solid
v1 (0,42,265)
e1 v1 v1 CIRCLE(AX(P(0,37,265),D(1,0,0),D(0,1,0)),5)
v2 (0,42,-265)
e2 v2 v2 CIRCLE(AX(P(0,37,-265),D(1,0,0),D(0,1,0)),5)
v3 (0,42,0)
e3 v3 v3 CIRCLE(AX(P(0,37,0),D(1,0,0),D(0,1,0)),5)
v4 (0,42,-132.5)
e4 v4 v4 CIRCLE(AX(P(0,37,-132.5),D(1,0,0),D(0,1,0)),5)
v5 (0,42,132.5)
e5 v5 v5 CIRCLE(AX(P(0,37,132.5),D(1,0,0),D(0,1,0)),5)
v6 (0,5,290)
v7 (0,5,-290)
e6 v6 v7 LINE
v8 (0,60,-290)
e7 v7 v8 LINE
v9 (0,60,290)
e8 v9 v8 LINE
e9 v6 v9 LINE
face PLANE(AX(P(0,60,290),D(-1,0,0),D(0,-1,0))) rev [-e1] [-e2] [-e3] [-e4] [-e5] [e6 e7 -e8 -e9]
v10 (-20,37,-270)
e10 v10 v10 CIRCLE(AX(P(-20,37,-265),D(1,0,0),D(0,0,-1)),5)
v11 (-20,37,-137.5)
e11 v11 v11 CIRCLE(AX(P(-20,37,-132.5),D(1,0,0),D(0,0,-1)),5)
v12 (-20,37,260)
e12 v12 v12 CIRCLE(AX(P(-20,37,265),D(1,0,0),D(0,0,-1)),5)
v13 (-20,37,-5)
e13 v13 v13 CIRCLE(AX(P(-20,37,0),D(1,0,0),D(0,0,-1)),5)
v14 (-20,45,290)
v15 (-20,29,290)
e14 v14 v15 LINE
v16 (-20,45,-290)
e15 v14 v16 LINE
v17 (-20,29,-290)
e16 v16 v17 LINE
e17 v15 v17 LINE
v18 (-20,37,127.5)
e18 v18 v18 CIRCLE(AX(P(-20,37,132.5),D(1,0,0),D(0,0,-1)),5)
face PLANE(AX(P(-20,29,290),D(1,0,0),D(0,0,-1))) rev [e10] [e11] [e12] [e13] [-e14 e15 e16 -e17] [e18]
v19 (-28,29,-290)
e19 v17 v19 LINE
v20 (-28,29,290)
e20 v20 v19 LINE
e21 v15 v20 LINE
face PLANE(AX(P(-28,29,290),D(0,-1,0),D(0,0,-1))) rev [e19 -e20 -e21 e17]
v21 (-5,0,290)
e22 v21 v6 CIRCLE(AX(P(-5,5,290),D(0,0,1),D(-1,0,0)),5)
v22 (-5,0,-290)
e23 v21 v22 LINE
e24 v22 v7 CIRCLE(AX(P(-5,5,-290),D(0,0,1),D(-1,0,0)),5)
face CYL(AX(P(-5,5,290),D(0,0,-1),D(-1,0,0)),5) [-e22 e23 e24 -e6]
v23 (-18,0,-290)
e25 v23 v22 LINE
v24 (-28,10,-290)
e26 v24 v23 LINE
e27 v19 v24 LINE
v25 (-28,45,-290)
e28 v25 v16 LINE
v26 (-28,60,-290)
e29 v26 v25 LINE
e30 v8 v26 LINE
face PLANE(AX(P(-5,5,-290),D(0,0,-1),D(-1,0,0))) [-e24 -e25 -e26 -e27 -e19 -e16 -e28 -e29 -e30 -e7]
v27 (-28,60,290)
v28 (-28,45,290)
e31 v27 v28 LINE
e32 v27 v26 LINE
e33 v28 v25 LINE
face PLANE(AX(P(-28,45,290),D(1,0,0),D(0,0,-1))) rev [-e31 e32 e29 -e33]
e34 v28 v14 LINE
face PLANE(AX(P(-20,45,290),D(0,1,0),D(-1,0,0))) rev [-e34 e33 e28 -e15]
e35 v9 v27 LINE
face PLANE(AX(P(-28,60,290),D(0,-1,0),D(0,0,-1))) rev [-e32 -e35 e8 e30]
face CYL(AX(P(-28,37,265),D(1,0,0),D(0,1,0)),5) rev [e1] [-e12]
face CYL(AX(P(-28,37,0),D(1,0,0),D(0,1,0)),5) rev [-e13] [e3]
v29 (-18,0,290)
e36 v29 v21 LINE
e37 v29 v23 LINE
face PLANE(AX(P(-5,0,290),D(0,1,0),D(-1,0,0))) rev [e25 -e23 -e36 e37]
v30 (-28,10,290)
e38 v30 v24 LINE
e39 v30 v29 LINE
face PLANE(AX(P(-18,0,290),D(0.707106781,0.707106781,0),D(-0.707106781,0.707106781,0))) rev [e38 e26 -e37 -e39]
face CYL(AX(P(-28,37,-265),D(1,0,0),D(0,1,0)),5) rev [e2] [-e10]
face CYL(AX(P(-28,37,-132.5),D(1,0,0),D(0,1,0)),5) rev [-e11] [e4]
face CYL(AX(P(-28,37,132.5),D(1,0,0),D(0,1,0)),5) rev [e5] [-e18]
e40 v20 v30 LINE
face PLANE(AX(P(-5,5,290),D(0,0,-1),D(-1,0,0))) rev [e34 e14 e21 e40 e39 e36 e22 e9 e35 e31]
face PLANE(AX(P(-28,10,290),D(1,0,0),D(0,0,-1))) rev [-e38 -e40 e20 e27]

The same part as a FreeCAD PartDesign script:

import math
import FreeCAD as App
import Part
import Sketcher

V = App.Vector
Q = App.Units.Quantity

doc = App.newDocument("Part")
body = doc.addObject("PartDesign::Body", "Body")

# Sketch on XY plane
sketch1 = body.newObject("Sketcher::SketchObject", "Sketch")
sketch1.AttachmentSupport = (doc.getObject("XY_Plane"), [""])
sketch1.MapMode = "FlatFace"
sketch1.addGeometry(Part.LineSegment(V(0, 5, 0), V(0, 60, 0)), False)
sketch1.addGeometry(Part.LineSegment(V(0, 60, 0), V(-28, 60, 0)), False)
sketch1.addGeometry(Part.LineSegment(V(-28, 60, 0), V(-28, 45, 0)), False)
sketch1.addGeometry(Part.LineSegment(V(-28, 45, 0), V(-20, 45, 0)), False)
sketch1.addGeometry(Part.LineSegment(V(-20, 45, 0), V(-20, 29, 0)), False)
sketch1.addGeometry(Part.LineSegment(V(-20, 29, 0), V(-28, 29, 0)), False)
sketch1.addGeometry(Part.LineSegment(V(-28, 29, 0), V(-28, 10, 0)), False)
sketch1.addGeometry(Part.LineSegment(V(-28, 10, 0), V(-18, 0, 0)), False)
sketch1.addGeometry(Part.LineSegment(V(-18, 0, 0), V(-5, 0, 0)), False)
sketch1.addGeometry(Part.ArcOfCircle(Part.Circle(V(-5, 5, 0), V(0, 0, 1), 5), math.radians(-90), math.radians(0)), False)
sketch1.addConstraint(Sketcher.Constraint("Coincident", 0, 2, 1, 1))
sketch1.addConstraint(Sketcher.Constraint("Coincident", 1, 2, 2, 1))
sketch1.addConstraint(Sketcher.Constraint("Coincident", 2, 2, 3, 1))
sketch1.addConstraint(Sketcher.Constraint("Coincident", 3, 2, 4, 1))
sketch1.addConstraint(Sketcher.Constraint("Coincident", 4, 2, 5, 1))
sketch1.addConstraint(Sketcher.Constraint("Coincident", 5, 2, 6, 1))
sketch1.addConstraint(Sketcher.Constraint("Coincident", 6, 2, 7, 1))
sketch1.addConstraint(Sketcher.Constraint("Coincident", 7, 2, 8, 1))
sketch1.addConstraint(Sketcher.Constraint("Tangent", 8, 2, 9, 1))
sketch1.addConstraint(Sketcher.Constraint("Tangent", 9, 2, 0, 1))
sketch1.addConstraint(Sketcher.Constraint("Vertical", 0))
sketch1.addConstraint(Sketcher.Constraint("Horizontal", 1))
sketch1.addConstraint(Sketcher.Constraint("Vertical", 2))
sketch1.addConstraint(Sketcher.Constraint("Horizontal", 3))
sketch1.addConstraint(Sketcher.Constraint("Vertical", 4))
sketch1.addConstraint(Sketcher.Constraint("Horizontal", 5))
sketch1.addConstraint(Sketcher.Constraint("Vertical", 6))
sketch1.addConstraint(Sketcher.Constraint("Horizontal", 8))
sketch1.addConstraint(Sketcher.Constraint("PointOnObject", 0, 2, -2))
sketch1.addConstraint(Sketcher.Constraint("PointOnObject", 7, 2, -1))
sketch1.addConstraint(Sketcher.Constraint("Vertical", 2, 2, 5, 2))
sketch1.addConstraint(Sketcher.Constraint("Radius", 9, Q("5 mm")))
sketch1.addConstraint(Sketcher.Constraint("DistanceX", 1, 2, 1, 1, Q("28 mm")))
sketch1.addConstraint(Sketcher.Constraint("DistanceX", 3, 1, 3, 2, Q("8 mm")))
sketch1.addConstraint(Sketcher.Constraint("DistanceX", 8, 1, 8, 2, Q("13 mm")))
sketch1.addConstraint(Sketcher.Constraint("DistanceY", 0, 1, 0, 2, Q("55 mm")))
sketch1.addConstraint(Sketcher.Constraint("DistanceY", 2, 2, 2, 1, Q("15 mm")))
sketch1.addConstraint(Sketcher.Constraint("DistanceY", 4, 2, 4, 1, Q("16 mm")))
sketch1.addConstraint(Sketcher.Constraint("DistanceY", 6, 2, 6, 1, Q("19 mm")))
pad1 = body.newObject("PartDesign::Pad", "Pad")
pad1.Profile = sketch1
pad1.Length = 580
pad1.Midplane = True

# Sketch on YZ plane
sketch2 = body.newObject("Sketcher::SketchObject", "Sketch001")
sketch2.AttachmentSupport = (doc.getObject("YZ_Plane"), [""])
sketch2.MapMode = "FlatFace"
sketch2.addGeometry(Part.Circle(V(37, 265, 0), V(0, 0, 1), 5), False)
sketch2.addGeometry(Part.Circle(V(37, 132.5, 0), V(0, 0, 1), 5), False)
sketch2.addGeometry(Part.Circle(V(37, 0, 0), V(0, 0, 1), 5), False)
sketch2.addGeometry(Part.Circle(V(37, -132.5, 0), V(0, 0, 1), 5), False)
sketch2.addGeometry(Part.Circle(V(37, -265, 0), V(0, 0, 1), 5), False)
sketch2.addConstraint(Sketcher.Constraint("Equal", 0, 1))
sketch2.addConstraint(Sketcher.Constraint("Equal", 1, 2))
sketch2.addConstraint(Sketcher.Constraint("Equal", 2, 3))
sketch2.addConstraint(Sketcher.Constraint("Equal", 3, 4))
sketch2.addConstraint(Sketcher.Constraint("Symmetric", 1, 3, 3, 3, -1))
sketch2.addConstraint(Sketcher.Constraint("Symmetric", 0, 3, 4, 3, -1))
sketch2.addConstraint(Sketcher.Constraint("PointOnObject", 2, 3, -1))
sketch2.addConstraint(Sketcher.Constraint("Vertical", 0, 3, 1, 3))
sketch2.addConstraint(Sketcher.Constraint("Vertical", 1, 3, 2, 3))
sketch2.addConstraint(Sketcher.Constraint("Diameter", 0, Q("10 mm")))
sketch2.addConstraint(Sketcher.Constraint("DistanceX", -1, 1, 0, 3, Q("37 mm")))
sketch2.addConstraint(Sketcher.Constraint("DistanceY", -1, 1, 0, 3, Q("265 mm")))
sketch2.addConstraint(Sketcher.Constraint("DistanceY", 3, 3, 1, 3, Q("265 mm")))
pocket1 = body.newObject("PartDesign::Pocket", "Pocket")
pocket1.Profile = sketch2
pocket1.Type = "ThroughAll"

doc.recompute()
